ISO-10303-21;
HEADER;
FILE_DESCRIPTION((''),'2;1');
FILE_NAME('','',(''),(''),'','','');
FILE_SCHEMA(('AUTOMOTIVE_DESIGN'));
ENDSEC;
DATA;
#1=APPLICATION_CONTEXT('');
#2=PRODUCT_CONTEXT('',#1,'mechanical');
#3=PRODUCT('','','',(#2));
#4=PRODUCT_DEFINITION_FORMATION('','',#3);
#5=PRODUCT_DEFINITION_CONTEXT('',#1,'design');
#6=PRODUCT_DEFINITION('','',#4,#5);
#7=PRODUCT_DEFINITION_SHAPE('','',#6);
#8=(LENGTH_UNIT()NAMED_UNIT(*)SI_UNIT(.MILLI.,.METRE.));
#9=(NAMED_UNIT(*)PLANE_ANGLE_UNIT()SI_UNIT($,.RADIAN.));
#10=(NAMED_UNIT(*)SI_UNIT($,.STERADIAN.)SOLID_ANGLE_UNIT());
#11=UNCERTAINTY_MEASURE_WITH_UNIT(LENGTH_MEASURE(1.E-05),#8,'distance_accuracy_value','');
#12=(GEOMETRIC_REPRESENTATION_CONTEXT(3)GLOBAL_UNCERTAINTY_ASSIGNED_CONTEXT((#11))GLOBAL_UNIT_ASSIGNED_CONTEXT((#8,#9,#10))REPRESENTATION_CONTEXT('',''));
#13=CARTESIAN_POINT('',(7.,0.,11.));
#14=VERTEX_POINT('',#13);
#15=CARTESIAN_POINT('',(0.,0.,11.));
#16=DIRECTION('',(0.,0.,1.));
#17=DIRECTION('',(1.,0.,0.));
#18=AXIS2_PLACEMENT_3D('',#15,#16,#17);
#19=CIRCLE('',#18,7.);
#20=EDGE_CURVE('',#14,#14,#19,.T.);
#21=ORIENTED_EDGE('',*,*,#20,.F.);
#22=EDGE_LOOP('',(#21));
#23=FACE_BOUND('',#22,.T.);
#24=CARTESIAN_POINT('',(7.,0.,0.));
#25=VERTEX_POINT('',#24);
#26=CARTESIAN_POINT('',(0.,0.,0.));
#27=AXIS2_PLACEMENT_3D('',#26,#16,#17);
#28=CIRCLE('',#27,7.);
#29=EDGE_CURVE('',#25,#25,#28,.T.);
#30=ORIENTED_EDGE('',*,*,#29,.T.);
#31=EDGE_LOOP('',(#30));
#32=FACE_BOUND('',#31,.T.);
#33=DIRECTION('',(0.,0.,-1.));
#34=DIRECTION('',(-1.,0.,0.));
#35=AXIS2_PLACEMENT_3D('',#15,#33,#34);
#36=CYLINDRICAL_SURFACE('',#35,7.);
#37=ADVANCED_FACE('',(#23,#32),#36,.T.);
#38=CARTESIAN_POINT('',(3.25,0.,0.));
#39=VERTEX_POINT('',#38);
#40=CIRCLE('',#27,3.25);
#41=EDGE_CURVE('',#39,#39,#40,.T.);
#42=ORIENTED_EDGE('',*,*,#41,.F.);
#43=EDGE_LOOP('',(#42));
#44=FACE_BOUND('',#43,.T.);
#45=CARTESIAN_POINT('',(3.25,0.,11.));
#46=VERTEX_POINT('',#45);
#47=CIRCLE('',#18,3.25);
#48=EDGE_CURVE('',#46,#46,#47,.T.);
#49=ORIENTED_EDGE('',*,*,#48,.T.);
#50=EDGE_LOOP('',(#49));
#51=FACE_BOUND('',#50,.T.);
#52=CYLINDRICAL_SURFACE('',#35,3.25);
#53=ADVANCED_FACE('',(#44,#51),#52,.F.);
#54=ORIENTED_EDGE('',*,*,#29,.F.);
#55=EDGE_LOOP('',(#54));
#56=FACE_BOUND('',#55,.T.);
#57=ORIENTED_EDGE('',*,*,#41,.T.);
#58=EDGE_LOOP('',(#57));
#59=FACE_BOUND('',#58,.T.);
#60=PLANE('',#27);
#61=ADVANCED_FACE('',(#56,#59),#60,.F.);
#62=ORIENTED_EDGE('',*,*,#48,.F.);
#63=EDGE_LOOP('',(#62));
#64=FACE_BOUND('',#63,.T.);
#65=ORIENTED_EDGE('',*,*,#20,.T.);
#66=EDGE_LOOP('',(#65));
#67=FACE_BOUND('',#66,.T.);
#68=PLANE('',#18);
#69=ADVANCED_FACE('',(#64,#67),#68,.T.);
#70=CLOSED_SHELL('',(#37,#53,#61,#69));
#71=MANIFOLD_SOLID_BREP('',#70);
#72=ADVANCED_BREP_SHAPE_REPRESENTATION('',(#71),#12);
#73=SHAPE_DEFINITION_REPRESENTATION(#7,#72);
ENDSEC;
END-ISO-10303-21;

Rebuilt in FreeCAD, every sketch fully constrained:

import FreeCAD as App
import Part
import Sketcher

V = App.Vector

doc = App.newDocument("Part")
body = doc.addObject("PartDesign::Body", "Body")

# Sketch on XY plane
sketch1 = body.newObject("Sketcher::SketchObject", "Sketch")
sketch1.AttachmentSupport = (doc.getObject("XY_Plane"), [""])
sketch1.MapMode = "FlatFace"
sketch1.addGeometry([
    Part.Circle(V(0, 0, 0), V(0, 0, 1), 7),
    Part.Circle(V(0, 0, 0), V(0, 0, 1), 3.2),
], False)
sketch1.addConstraint([
    Sketcher.Constraint("Coincident", 0, 3, -1, 1),
    Sketcher.Constraint("Coincident", 1, 3, -1, 1),
    Sketcher.Constraint("Diameter", 0, 14.0),
    Sketcher.Constraint("Diameter", 1, 6.5),
])
pad1 = body.newObject("PartDesign::Pad", "Pad")
pad1.Profile = sketch1
pad1.Length = 11

doc.recompute()
